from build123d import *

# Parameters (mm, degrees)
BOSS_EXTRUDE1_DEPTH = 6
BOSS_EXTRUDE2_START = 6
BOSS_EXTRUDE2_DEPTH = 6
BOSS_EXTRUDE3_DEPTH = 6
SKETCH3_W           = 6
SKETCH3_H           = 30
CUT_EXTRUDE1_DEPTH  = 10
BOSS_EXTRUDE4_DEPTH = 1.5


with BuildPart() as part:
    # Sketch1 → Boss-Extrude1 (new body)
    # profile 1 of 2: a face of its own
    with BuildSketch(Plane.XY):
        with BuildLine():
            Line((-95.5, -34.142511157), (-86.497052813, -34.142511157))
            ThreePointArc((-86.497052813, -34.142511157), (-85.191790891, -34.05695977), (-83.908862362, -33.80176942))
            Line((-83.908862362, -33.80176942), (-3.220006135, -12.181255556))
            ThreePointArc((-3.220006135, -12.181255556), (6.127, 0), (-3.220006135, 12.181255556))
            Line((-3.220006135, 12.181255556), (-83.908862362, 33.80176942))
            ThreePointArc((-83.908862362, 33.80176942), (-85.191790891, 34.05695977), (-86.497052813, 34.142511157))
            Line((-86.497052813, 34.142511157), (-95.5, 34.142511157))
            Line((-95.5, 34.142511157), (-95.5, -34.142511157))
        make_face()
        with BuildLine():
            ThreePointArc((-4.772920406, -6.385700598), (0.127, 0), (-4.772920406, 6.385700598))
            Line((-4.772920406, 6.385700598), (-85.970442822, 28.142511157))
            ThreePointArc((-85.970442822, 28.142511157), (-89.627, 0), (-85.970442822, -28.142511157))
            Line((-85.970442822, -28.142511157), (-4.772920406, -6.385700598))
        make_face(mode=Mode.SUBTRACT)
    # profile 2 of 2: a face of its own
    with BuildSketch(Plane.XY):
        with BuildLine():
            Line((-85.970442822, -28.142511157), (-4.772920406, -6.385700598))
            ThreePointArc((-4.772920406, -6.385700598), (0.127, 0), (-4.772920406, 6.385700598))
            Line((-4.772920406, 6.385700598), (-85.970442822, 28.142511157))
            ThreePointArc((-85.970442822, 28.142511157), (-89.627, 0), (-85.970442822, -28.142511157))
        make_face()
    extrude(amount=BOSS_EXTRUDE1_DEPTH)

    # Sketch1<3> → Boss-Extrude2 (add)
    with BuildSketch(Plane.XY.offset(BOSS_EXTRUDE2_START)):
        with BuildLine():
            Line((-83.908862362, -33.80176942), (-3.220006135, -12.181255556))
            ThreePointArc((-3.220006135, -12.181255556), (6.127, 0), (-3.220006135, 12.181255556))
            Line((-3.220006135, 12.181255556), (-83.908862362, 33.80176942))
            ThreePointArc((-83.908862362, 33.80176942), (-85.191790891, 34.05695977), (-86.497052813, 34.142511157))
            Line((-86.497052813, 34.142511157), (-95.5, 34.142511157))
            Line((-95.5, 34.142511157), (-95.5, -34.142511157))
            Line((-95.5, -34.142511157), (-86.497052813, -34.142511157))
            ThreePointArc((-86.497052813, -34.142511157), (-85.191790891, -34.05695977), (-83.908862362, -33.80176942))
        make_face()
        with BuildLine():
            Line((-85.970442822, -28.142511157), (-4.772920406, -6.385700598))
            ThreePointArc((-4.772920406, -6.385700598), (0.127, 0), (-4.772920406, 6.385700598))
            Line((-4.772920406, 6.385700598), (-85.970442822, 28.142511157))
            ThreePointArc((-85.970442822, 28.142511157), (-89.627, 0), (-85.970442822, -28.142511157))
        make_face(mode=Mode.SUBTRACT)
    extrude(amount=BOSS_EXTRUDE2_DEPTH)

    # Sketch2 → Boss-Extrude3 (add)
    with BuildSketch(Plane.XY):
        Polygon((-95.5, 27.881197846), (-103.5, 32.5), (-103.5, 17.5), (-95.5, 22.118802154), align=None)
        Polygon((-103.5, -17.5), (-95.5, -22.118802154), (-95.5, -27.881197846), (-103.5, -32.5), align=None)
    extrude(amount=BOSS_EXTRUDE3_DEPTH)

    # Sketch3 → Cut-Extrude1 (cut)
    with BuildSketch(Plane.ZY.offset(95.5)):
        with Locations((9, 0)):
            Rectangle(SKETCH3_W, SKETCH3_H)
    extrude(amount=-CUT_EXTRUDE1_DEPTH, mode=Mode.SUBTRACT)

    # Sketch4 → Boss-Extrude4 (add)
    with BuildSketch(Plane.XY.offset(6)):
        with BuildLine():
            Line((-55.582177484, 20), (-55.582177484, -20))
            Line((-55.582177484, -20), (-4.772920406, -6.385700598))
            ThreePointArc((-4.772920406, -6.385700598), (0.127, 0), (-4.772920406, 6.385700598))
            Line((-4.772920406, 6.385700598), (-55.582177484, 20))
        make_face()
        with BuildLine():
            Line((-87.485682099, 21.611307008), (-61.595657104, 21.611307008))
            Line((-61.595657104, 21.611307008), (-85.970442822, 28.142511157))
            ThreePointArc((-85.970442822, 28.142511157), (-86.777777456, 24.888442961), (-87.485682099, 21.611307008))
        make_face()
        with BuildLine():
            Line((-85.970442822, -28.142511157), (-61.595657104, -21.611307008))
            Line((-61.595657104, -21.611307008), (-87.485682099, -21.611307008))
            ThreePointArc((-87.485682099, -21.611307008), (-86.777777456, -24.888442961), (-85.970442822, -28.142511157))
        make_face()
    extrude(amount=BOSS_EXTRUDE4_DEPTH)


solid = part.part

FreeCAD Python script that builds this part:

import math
import FreeCAD as App
import Part
import Sketcher

V = App.Vector
Q = App.Units.Quantity


def add_polygon(sketch, points):
    """Adds a closed chain of lines whose ends are joined by coincident constraints."""
    first, n = sketch.GeometryCount, len(points)
    for a, b in zip(points, points[1:] + points[:1]):
        sketch.addGeometry(Part.LineSegment(App.Vector(*a, 0), App.Vector(*b, 0)), False)
    for i in range(n):
        sketch.addConstraint(Sketcher.Constraint("Coincident", first + i, 2, first + (i + 1) % n, 1))

doc = App.newDocument("Part")
body = doc.addObject("PartDesign::Body", "Body")

sketch1 = body.newObject("Sketcher::SketchObject", "Sketch")
sketch1.AttachmentSupport = (doc.getObject("XY_Plane"), [""])
sketch1.MapMode = "FlatFace"
sketch1.addGeometry(Part.LineSegment(V(-95.5, -34.142511, 0), V(-86.497053, -34.142511, 0)), False)
sketch1.addGeometry(Part.ArcOfCircle(Part.Circle(V(-86.497053, -24.142511, 0), V(0, 0, 1), 10), math.radians(-90), math.radians(-75)), False)
sketch1.addGeometry(Part.LineSegment(V(-83.908862, -33.801769, 0), V(-3.220006, -12.181256, 0)), False)
sketch1.addGeometry(Part.ArcOfCircle(Part.Circle(V(-6.483964, 0, 0), V(0, 0, 1), 12.610964), math.radians(-75), math.radians(75)), False)
sketch1.addGeometry(Part.LineSegment(V(-3.220006, 12.181256, 0), V(-83.908862, 33.801769, 0)), False)
sketch1.addGeometry(Part.ArcOfCircle(Part.Circle(V(-86.497053, 24.142511, 0), V(0, 0, 1), 10), math.radians(75), math.radians(90)), False)
sketch1.addGeometry(Part.LineSegment(V(-86.497053, 34.142511, 0), V(-95.5, 34.142511, 0)), False)
sketch1.addGeometry(Part.LineSegment(V(-95.5, 34.142511, 0), V(-95.5, -34.142511, 0)), False)
sketch1.addConstraint(Sketcher.Constraint("Tangent", 0, 2, 1, 1))
sketch1.addConstraint(Sketcher.Constraint("Tangent", 1, 2, 2, 1))
sketch1.addConstraint(Sketcher.Constraint("Tangent", 2, 2, 3, 1))
sketch1.addConstraint(Sketcher.Constraint("Tangent", 3, 2, 4, 1))
sketch1.addConstraint(Sketcher.Constraint("Tangent", 4, 2, 5, 1))
sketch1.addConstraint(Sketcher.Constraint("Tangent", 5, 2, 6, 1))
sketch1.addConstraint(Sketcher.Constraint("Coincident", 6, 2, 7, 1))
sketch1.addConstraint(Sketcher.Constraint("Coincident", 7, 2, 0, 1))
sketch1.addConstraint(Sketcher.Constraint("Horizontal", 0))
sketch1.addConstraint(Sketcher.Constraint("Horizontal", 6))
sketch1.addConstraint(Sketcher.Constraint("Vertical", 7))
sketch1.addConstraint(Sketcher.Constraint("Equal", 1, 5))
sketch1.addConstraint(Sketcher.Constraint("Symmetric", 1, 3, 5, 3, -1))
sketch1.addConstraint(Sketcher.Constraint("PointOnObject", 3, 3, -1))
sketch1.addConstraint(Sketcher.Constraint("Radius", 1, 10.0))
sketch1.addConstraint(Sketcher.Constraint("Angle", 2, Q("15 deg")))
sketch1.addConstraint(Sketcher.Constraint("DistanceX", 6, 2, -1, 1, 95.5))
sketch1.addConstraint(Sketcher.Constraint("Radius", 3, 12.610964))
sketch1.addConstraint(Sketcher.Constraint("DistanceX", 1, 2, 3, 3, 77.424899))
sketch1.addConstraint(Sketcher.Constraint("DistanceX", 0, 1, 0, 2, 9.002947))
pad1 = body.newObject("PartDesign::Pad", "Pad")
pad1.Profile = sketch1
pad1.Length = 6

sketch2 = body.newObject("Sketcher::SketchObject", "Sketch001")
sketch2.AttachmentSupport = (doc.getObject("XY_Plane"), [""])
sketch2.MapMode = "FlatFace"
sketch2.AttachmentOffset = App.Placement(V(0, 0, 6), App.Rotation())
sketch2.addGeometry(Part.LineSegment(V(-83.908862, -33.801769, 0), V(-3.220006, -12.181256, 0)), False)
sketch2.addGeometry(Part.ArcOfCircle(Part.Circle(V(-6.483964, 0, 0), V(0, 0, 1), 12.610964), math.radians(-75), math.radians(75)), False)
sketch2.addGeometry(Part.LineSegment(V(-3.220006, 12.181256, 0), V(-83.908862, 33.801769, 0)), False)
sketch2.addGeometry(Part.ArcOfCircle(Part.Circle(V(-86.497053, 24.142511, 0), V(0, 0, 1), 10), math.radians(75), math.radians(90)), False)
sketch2.addGeometry(Part.LineSegment(V(-86.497053, 34.142511, 0), V(-95.5, 34.142511, 0)), False)
sketch2.addGeometry(Part.LineSegment(V(-95.5, 34.142511, 0), V(-95.5, -34.142511, 0)), False)
sketch2.addGeometry(Part.LineSegment(V(-95.5, -34.142511, 0), V(-86.497053, -34.142511, 0)), False)
sketch2.addGeometry(Part.ArcOfCircle(Part.Circle(V(-86.497053, -24.142511, 0), V(0, 0, 1), 10), math.radians(-90), math.radians(-75)), False)
sketch2.addGeometry(Part.LineSegment(V(-4.77292, -6.385701, 0), V(-85.970443, -28.142511, 0)), False)
sketch2.addGeometry(Part.ArcOfCircle(Part.Circle(V(20.5, 0, 0), V(0, 0, 1), 110.127), math.radians(165.194061), math.radians(194.805939)), False)
sketch2.addGeometry(Part.LineSegment(V(-85.970443, 28.142511, 0), V(-4.77292, 6.385701, 0)), False)
sketch2.addGeometry(Part.ArcOfCircle(Part.Circle(V(-6.483964, 0, 0), V(0, 0, 1), 6.610964), math.radians(-75), math.radians(75)), False)
sketch2.addConstraint(Sketcher.Constraint("Tangent", 0, 2, 1, 1))
sketch2.addConstraint(Sketcher.Constraint("Tangent", 1, 2, 2, 1))
sketch2.addConstraint(Sketcher.Constraint("Tangent", 2, 2, 3, 1))
sketch2.addConstraint(Sketcher.Constraint("Tangent", 3, 2, 4, 1))
sketch2.addConstraint(Sketcher.Constraint("Coincident", 4, 2, 5, 1))
sketch2.addConstraint(Sketcher.Constraint("Coincident", 5, 2, 6, 1))
sketch2.addConstraint(Sketcher.Constraint("Tangent", 6, 2, 7, 1))
sketch2.addConstraint(Sketcher.Constraint("Tangent", 7, 2, 0, 1))
sketch2.addConstraint(Sketcher.Constraint("Coincident", 8, 2, 9, 2))
sketch2.addConstraint(Sketcher.Constraint("Coincident", 9, 1, 10, 1))
sketch2.addConstraint(Sketcher.Constraint("Tangent", 10, 2, 11, 2))
sketch2.addConstraint(Sketcher.Constraint("Tangent", 11, 1, 8, 1))
sketch2.addConstraint(Sketcher.Constraint("Horizontal", 4))
sketch2.addConstraint(Sketcher.Constraint("Vertical", 5))
sketch2.addConstraint(Sketcher.Constraint("Horizontal", 6))
sketch2.addConstraint(Sketcher.Constraint("Coincident", 11, 3, 1, 3))
sketch2.addConstraint(Sketcher.Constraint("Equal", 3, 7))
sketch2.addConstraint(Sketcher.Constraint("Symmetric", 3, 3, 7, 3, -1))
sketch2.addConstraint(Sketcher.Constraint("Symmetric", 8, 2, 9, 1, -1))
sketch2.addConstraint(Sketcher.Constraint("PointOnObject", 1, 3, -1))
sketch2.addConstraint(Sketcher.Constraint("Parallel", 0, 8))
sketch2.addConstraint(Sketcher.Constraint("Radius", 3, 10.0))
sketch2.addConstraint(Sketcher.Constraint("Angle", 0, Q("15 deg")))
sketch2.addConstraint(Sketcher.Constraint("Radius", 9, 110.127))
sketch2.addConstraint(Sketcher.Constraint("DistanceY", 8, 2, 7, 3, 4.0))
sketch2.addConstraint(Sketcher.Constraint("DistanceX", -1, 1, 9, 3, 20.5))
sketch2.addConstraint(Sketcher.Constraint("DistanceX", 4, 2, -1, 1, 95.5))
sketch2.addConstraint(Sketcher.Constraint("Radius", 1, 12.610964))
sketch2.addConstraint(Sketcher.Constraint("Radius", 11, 6.610964))
sketch2.addConstraint(Sketcher.Constraint("DistanceX", 2, 2, 1, 3, 77.424899))
pad2 = body.newObject("PartDesign::Pad", "Pad001")
pad2.Profile = sketch2
pad2.Length = 6

sketch3 = body.newObject("Sketcher::SketchObject", "Sketch002")
sketch3.AttachmentSupport = (doc.getObject("XY_Plane"), [""])
sketch3.MapMode = "FlatFace"
add_polygon(sketch3, [(-95.5, 27.881198), (-103.5, 32.5), (-103.5, 17.5), (-95.5, 22.118802)])
add_polygon(sketch3, [(-95.5, -22.118802), (-103.5, -17.5), (-103.5, -32.5), (-95.5, -27.881198)])
sketch3.addConstraint(Sketcher.Constraint("Vertical", 1))
sketch3.addConstraint(Sketcher.Constraint("Vertical", 3))
sketch3.addConstraint(Sketcher.Constraint("Vertical", 5))
sketch3.addConstraint(Sketcher.Constraint("Vertical", 7))
sketch3.addConstraint(Sketcher.Constraint("Symmetric", 1, 2, 4, 2, -1))
sketch3.addConstraint(Sketcher.Constraint("Symmetric", 3, 2, 6, 2, -1))
sketch3.addConstraint(Sketcher.Constraint("Parallel", 0, 4))
sketch3.addConstraint(Sketcher.Constraint("Parallel", 2, 6))
sketch3.addConstraint(Sketcher.Constraint("Equal", 1, 5))
sketch3.addConstraint(Sketcher.Constraint("DistanceY", 1, 2, 1, 1, 15.0))
sketch3.addConstraint(Sketcher.Constraint("Angle", 0, Q("150 deg")))
sketch3.addConstraint(Sketcher.Constraint("DistanceX", 1, 2, 2, 2, 8.0))
sketch3.addConstraint(Sketcher.Constraint("DistanceY", 4, 2, 1, 2, 35.0))
sketch3.addConstraint(Sketcher.Constraint("DistanceX", 0, 2, -1, 1, 103.5))
pad3 = body.newObject("PartDesign::Pad", "Pad002")
pad3.Profile = sketch3
pad3.Length = 6

sketch4 = body.newObject("Sketcher::SketchObject", "Sketch003")
sketch4.AttachmentSupport = (doc.getObject("YZ_Plane"), [""])
sketch4.MapMode = "FlatFace"
sketch4.AttachmentOffset = App.Placement(V(0, 0, -95.5), App.Rotation())
add_polygon(sketch4, [(15, 6), (-15, 6), (-15, 12), (15, 12)])
sketch4.addConstraint(Sketcher.Constraint("Horizontal", 0))
sketch4.addConstraint(Sketcher.Constraint("Vertical", 1))
sketch4.addConstraint(Sketcher.Constraint("Horizontal", 2))
sketch4.addConstraint(Sketcher.Constraint("Vertical", 3))
sketch4.addConstraint(Sketcher.Constraint("DistanceX", 0, 2, 0, 1, 30.0))
sketch4.addConstraint(Sketcher.Constraint("DistanceY", 1, 1, 1, 2, 6.0))
sketch4.addConstraint(Sketcher.Constraint("DistanceX", 0, 2, -1, 1, 15.0))
sketch4.addConstraint(Sketcher.Constraint("DistanceY", -1, 1, 0, 2, 6.0))
pocket1 = body.newObject("PartDesign::Pocket", "Pocket")
pocket1.Profile = sketch4
pocket1.Length = 10
pocket1.Reversed = True

sketch5 = body.newObject("Sketcher::SketchObject", "Sketch004")
sketch5.AttachmentSupport = (doc.getObject("XY_Plane"), [""])
sketch5.MapMode = "FlatFace"
sketch5.AttachmentOffset = App.Placement(V(0, 0, 6), App.Rotation())
sketch5.addGeometry(Part.LineSegment(V(-55.582177, 20, 0), V(-55.582177, -20, 0)), False)
sketch5.addGeometry(Part.LineSegment(V(-55.582177, -20, 0), V(-4.77292, -6.385701, 0)), False)
sketch5.addGeometry(Part.ArcOfCircle(Part.Circle(V(-6.483964, 0, 0), V(0, 0, 1), 6.610964), math.radians(-75), math.radians(75)), False)
sketch5.addGeometry(Part.LineSegment(V(-4.77292, 6.385701, 0), V(-55.582177, 20, 0)), False)
sketch5.addGeometry(Part.LineSegment(V(-87.485682, 21.611307, 0), V(-61.595657, 21.611307, 0)), False)
sketch5.addGeometry(Part.LineSegment(V(-61.595657, 21.611307, 0), V(-85.970443, 28.142511, 0)), False)
sketch5.addGeometry(Part.ArcOfCircle(Part.Circle(V(20.5, 0, 0), V(0, 0, 1), 110.127), math.radians(165.194061), math.radians(168.682838)), False)
sketch5.addGeometry(Part.LineSegment(V(-85.970443, -28.142511, 0), V(-61.595657, -21.611307, 0)), False)
sketch5.addGeometry(Part.LineSegment(V(-61.595657, -21.611307, 0), V(-87.485682, -21.611307, 0)), False)
sketch5.addGeometry(Part.ArcOfCircle(Part.Circle(V(20.5, 0, 0), V(0, 0, 1), 110.127), math.radians(-168.682838), math.radians(-165.194061)), False)
sketch5.addConstraint(Sketcher.Constraint("Coincident", 0, 2, 1, 1))
sketch5.addConstraint(Sketcher.Constraint("Tangent", 1, 2, 2, 1))
sketch5.addConstraint(Sketcher.Constraint("Tangent", 2, 2, 3, 1))
sketch5.addConstraint(Sketcher.Constraint("Coincident", 3, 2, 0, 1))
sketch5.addConstraint(Sketcher.Constraint("Coincident", 4, 2, 5, 1))
sketch5.addConstraint(Sketcher.Constraint("Coincident", 5, 2, 6, 1))
sketch5.addConstraint(Sketcher.Constraint("Coincident", 6, 2, 4, 1))
sketch5.addConstraint(Sketcher.Constraint("Coincident", 7, 2, 8, 1))
sketch5.addConstraint(Sketcher.Constraint("Coincident", 8, 2, 9, 1))
sketch5.addConstraint(Sketcher.Constraint("Coincident", 9, 2, 7, 1))
sketch5.addConstraint(Sketcher.Constraint("Vertical", 0))
sketch5.addConstraint(Sketcher.Constraint("Horizontal", 4))
sketch5.addConstraint(Sketcher.Constraint("Horizontal", 8))
sketch5.addConstraint(Sketcher.Constraint("Coincident", 9, 3, 6, 3))
sketch5.addConstraint(Sketcher.Constraint("Equal", 6, 9))
sketch5.addConstraint(Sketcher.Constraint("Symmetric", 1, 2, 2, 2, -1))
sketch5.addConstraint(Sketcher.Constraint("Symmetric", 4, 2, 7, 2, -1))
sketch5.addConstraint(Sketcher.Constraint("Symmetric", 5, 2, 9, 2, -1))
sketch5.addConstraint(Sketcher.Constraint("Parallel", 3, 5))
sketch5.addConstraint(Sketcher.Constraint("DistanceY", 0, 2, 0, 1, 40.0))
sketch5.addConstraint(Sketcher.Constraint("Angle", 1, Q("15 deg")))
sketch5.addConstraint(Sketcher.Constraint("Radius", 6, 110.127))
sketch5.addConstraint(Sketcher.Constraint("DistanceX", -1, 1, 6, 3, 20.5))
sketch5.addConstraint(Sketcher.Constraint("Radius", 2, 6.610964))
sketch5.addConstraint(Sketcher.Constraint("DistanceX", 4, 1, 4, 2, 25.890025))
sketch5.addConstraint(Sketcher.Constraint("DistanceX", 1, 2, -1, 1, 4.77292))
sketch5.addConstraint(Sketcher.Constraint("DistanceY", -1, 1, 5, 2, 28.142511))
pad4 = body.newObject("PartDesign::Pad", "Pad003")
pad4.Profile = sketch5
pad4.Length = 1.5

doc.recompute()
